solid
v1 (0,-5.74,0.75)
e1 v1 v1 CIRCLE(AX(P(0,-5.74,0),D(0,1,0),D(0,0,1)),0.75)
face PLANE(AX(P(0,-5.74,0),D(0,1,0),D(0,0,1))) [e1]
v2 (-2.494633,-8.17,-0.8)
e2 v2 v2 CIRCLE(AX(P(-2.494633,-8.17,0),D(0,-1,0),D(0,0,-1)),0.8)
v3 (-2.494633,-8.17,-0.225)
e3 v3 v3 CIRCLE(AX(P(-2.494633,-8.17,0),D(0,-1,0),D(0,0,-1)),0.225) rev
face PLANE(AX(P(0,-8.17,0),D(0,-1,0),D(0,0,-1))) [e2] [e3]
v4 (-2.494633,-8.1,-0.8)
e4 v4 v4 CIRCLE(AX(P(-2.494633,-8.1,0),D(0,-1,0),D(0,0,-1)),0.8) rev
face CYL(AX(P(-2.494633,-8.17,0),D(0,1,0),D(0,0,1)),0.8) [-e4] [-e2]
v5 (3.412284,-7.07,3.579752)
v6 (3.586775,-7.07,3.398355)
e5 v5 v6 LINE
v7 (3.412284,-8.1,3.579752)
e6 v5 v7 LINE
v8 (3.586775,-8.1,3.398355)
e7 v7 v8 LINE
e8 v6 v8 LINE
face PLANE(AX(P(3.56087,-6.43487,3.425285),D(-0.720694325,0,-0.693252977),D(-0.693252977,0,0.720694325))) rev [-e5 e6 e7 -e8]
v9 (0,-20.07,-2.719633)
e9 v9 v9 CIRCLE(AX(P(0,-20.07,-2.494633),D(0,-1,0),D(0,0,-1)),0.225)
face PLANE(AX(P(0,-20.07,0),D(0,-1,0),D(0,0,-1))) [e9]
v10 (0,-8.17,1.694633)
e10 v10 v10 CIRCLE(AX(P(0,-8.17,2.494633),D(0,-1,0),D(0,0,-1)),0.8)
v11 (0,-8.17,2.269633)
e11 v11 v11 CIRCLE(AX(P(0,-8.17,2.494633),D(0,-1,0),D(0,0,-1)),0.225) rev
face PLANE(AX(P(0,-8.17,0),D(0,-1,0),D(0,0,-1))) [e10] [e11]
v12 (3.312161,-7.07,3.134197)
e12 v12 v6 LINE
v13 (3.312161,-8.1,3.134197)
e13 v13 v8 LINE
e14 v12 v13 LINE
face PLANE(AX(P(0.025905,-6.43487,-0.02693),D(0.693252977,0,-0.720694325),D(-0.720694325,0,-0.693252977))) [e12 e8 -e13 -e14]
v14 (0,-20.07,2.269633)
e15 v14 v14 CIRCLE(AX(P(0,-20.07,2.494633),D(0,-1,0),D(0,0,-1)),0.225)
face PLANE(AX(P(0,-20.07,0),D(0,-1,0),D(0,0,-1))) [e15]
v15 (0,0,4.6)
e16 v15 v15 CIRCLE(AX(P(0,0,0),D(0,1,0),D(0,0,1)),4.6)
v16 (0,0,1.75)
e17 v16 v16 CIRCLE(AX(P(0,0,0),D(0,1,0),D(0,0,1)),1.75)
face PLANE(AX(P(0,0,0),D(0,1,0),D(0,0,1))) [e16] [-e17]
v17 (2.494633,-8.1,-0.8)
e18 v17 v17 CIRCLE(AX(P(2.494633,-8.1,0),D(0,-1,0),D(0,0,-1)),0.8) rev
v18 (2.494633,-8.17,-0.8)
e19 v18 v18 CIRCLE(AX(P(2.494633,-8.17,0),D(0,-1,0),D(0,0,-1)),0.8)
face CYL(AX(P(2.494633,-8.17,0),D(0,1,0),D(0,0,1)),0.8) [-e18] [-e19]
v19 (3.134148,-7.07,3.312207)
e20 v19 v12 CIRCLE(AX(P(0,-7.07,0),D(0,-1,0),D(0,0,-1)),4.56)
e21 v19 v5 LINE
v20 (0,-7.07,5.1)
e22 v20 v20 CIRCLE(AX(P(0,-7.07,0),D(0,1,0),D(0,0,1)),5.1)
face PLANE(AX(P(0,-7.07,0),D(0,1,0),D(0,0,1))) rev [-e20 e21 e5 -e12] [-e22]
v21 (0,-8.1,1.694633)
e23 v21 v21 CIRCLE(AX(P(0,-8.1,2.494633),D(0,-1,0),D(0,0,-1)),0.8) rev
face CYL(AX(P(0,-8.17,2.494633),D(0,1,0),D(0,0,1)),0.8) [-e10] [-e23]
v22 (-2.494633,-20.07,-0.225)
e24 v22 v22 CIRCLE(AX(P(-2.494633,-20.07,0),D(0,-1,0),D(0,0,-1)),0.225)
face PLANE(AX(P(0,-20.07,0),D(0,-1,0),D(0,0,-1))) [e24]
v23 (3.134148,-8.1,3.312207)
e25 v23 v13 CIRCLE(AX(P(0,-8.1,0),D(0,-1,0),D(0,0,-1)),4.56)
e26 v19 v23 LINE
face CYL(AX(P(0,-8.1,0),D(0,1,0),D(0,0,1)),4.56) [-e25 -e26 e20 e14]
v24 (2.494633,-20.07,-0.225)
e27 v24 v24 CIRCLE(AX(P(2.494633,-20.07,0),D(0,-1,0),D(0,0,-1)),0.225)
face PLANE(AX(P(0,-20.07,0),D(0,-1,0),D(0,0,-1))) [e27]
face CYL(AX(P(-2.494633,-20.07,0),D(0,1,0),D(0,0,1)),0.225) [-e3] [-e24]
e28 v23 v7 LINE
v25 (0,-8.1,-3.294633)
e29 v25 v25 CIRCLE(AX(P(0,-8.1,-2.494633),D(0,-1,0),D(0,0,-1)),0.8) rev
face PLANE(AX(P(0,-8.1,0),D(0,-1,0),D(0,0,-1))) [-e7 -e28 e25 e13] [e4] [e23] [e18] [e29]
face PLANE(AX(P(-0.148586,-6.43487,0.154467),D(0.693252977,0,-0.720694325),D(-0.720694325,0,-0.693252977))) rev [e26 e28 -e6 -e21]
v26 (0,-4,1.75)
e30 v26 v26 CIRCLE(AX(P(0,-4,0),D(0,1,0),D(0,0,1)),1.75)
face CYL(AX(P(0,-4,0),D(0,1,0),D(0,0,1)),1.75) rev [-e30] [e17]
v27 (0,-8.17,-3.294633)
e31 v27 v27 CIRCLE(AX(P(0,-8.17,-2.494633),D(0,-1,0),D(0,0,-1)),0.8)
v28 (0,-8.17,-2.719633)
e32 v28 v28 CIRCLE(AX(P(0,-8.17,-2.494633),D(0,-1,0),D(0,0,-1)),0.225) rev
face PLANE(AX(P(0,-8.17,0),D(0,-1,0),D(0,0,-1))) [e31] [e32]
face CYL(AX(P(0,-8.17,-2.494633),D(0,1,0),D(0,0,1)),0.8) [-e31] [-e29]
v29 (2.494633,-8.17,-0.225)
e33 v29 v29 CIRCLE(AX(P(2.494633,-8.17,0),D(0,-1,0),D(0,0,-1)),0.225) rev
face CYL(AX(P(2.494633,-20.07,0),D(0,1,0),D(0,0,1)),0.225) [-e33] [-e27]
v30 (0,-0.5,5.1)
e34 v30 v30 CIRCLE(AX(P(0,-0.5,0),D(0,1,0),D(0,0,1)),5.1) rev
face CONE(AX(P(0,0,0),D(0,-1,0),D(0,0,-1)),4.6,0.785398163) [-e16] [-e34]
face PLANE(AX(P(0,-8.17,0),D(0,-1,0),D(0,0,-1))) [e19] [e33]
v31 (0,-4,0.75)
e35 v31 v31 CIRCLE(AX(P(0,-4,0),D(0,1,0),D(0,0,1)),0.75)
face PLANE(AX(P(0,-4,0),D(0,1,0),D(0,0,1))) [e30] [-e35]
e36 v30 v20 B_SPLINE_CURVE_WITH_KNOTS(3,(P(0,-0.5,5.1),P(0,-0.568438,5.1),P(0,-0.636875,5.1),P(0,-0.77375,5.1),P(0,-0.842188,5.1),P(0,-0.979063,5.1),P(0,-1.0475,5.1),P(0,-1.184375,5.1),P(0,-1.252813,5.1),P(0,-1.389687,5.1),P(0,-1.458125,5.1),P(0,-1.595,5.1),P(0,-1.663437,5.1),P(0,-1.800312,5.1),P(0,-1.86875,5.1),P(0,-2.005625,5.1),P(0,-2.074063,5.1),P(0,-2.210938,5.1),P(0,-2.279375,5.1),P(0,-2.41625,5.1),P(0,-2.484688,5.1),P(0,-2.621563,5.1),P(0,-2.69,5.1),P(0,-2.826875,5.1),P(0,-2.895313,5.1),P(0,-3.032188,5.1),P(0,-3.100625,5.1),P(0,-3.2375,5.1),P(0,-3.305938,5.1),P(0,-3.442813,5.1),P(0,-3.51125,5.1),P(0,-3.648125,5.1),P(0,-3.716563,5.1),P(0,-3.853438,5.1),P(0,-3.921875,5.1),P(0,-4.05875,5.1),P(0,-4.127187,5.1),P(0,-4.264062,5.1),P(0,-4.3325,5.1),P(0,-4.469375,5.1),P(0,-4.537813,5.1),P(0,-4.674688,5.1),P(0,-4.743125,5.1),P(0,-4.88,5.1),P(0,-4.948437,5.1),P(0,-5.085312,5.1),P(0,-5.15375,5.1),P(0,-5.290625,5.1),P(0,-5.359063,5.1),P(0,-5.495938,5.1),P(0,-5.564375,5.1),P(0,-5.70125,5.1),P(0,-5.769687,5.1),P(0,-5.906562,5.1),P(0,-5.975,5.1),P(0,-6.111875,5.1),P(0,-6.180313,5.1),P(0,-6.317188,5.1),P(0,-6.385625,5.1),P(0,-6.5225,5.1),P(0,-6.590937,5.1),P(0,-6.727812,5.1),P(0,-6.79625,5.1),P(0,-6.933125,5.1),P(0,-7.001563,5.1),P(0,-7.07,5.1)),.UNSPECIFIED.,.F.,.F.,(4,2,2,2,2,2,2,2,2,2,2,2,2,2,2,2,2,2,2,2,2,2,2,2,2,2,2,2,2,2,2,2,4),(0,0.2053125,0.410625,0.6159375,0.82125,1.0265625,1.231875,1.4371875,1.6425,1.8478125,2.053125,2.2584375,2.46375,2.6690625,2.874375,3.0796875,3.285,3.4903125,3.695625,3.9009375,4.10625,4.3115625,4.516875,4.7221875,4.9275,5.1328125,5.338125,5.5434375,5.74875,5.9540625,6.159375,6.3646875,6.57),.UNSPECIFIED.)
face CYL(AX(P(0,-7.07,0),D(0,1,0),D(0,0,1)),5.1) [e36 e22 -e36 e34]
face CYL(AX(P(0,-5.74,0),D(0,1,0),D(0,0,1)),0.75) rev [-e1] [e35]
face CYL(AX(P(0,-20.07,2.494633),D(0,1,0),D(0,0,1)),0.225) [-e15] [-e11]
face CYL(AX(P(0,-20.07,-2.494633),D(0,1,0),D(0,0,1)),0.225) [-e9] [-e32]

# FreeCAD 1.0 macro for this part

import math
import FreeCAD as App
import Part
import Sketcher


def edges_at(feature, points):
    """Names of the edges that pass closest to the given points."""
    edges = feature.Shape.Edges
    near = lambda p: min(range(len(edges)), key=lambda i: edges[i].distToShape(Part.Vertex(*p))[0])
    return sorted({f"Edge{near(p) + 1}" for p in points})

doc = App.newDocument("Part")
body = doc.addObject("PartDesign::Body", "Body")

# Sketch on XZ plane
sketch1 = doc.addObject("Sketcher::SketchObject", "Sketch")
body.addObject(sketch1)
sketch1.AttachmentSupport = (doc.XZ_Plane, [""])
sketch1.MapMode = "FlatFace"
sketch1.addGeometry(Part.Circle(App.Vector(0, 0, 0), App.Vector(0, 0, 1), 5), False)
sketch1.addConstraint([
    Sketcher.Constraint("Coincident", 0, 3, -1, 1),
    Sketcher.Constraint("Diameter", 0, 10.2),
])
pad1 = doc.addObject("PartDesign::Pad", "Pad")
body.addObject(pad1)
pad1.Profile = sketch1
pad1.Length = 7.07

# Sketch on XZ plane
sketch2 = doc.addObject("Sketcher::SketchObject", "Sketch001")
body.addObject(sketch2)
sketch2.AttachmentSupport = (doc.XZ_Plane, [""])
sketch2.MapMode = "FlatFace"
sketch2.addGeometry(Part.Circle(App.Vector(0, 0, 0), App.Vector(0, 0, 1), 0.8), False)
sketch2.addConstraint([
    Sketcher.Constraint("Coincident", 0, 3, -1, 1),
    Sketcher.Constraint("Diameter", 0, 1.5),
])
pocket1 = doc.addObject("PartDesign::Pocket", "Pocket")
body.addObject(pocket1)
pocket1.Profile = sketch2
pocket1.Length = 5.74
pocket1.Reversed = True

# Sketch on XZ plane
sketch3 = doc.addObject("Sketcher::SketchObject", "Sketch002")
body.addObject(sketch3)
sketch3.AttachmentSupport = (doc.XZ_Plane, [""])
sketch3.MapMode = "FlatFace"
sketch3.addGeometry([
    Part.Circle(App.Vector(0, 0, 0), App.Vector(0, 0, 1), 1.8),
    Part.Circle(App.Vector(0, 0, 0), App.Vector(0, 0, 1), 0.8),
], False)
sketch3.addConstraint([
    Sketcher.Constraint("Coincident", 0, 3, -1, 1),
    Sketcher.Constraint("Coincident", 1, 3, -1, 1),
    Sketcher.Constraint("Diameter", 0, 3.5),
    Sketcher.Constraint("Diameter", 1, 1.5),
])
pocket2 = doc.addObject("PartDesign::Pocket", "Pocket001")
body.addObject(pocket2)
pocket2.Profile = sketch3
pocket2.Length = 4
pocket2.Reversed = True
doc.recompute()

chamfer = doc.addObject("PartDesign::Chamfer", "Chamfer")
body.addObject(chamfer)
chamfer.Base = (pocket2, edges_at(pocket2, [(0, 0, -5.1)]))
chamfer.Size = 0.5

# Sketch on XZ plane
sketch4 = doc.addObject("Sketcher::SketchObject", "Sketch003")
body.addObject(sketch4)
sketch4.AttachmentSupport = (doc.XZ_Plane, [""])
sketch4.MapMode = "FlatFace"
sketch4.AttachmentOffset = App.Placement(App.Vector(0, 0, 7.07), App.Rotation())
sketch4.addGeometry([
    Part.ArcOfCircle(Part.Circle(App.Vector(0, 0, 0), App.Vector(0, 0, 1), 4.6), math.radians(90), math.radians(180)),  # 0
    Part.ArcOfCircle(Part.Circle(App.Vector(0, 0, 0), App.Vector(0, 0, 1), 4.6), math.radians(-180), math.radians(-90)),  # 1
    Part.ArcOfCircle(Part.Circle(App.Vector(0, 0, 0), App.Vector(0, 0, 1), 4.6), math.radians(-90), math.radians(0)),  # 2
    Part.ArcOfCircle(Part.Circle(App.Vector(0, 0, 0), App.Vector(0, 0, 1), 4.6), math.radians(0), math.radians(45)),  # 3
    Part.ArcOfCircle(Part.Circle(App.Vector(0, 0, 0), App.Vector(0, 0, 1), 4.6), math.radians(45), math.radians(90)),  # 4
], False)
sketch4.addConstraint([
    Sketcher.Constraint("Tangent", 0, 2, 1, 1),
    Sketcher.Constraint("Tangent", 1, 2, 2, 1),
    Sketcher.Constraint("Tangent", 2, 2, 3, 1),
    Sketcher.Constraint("Tangent", 3, 2, 4, 1),
    Sketcher.Constraint("Tangent", 4, 2, 0, 1),
    Sketcher.Constraint("Coincident", 0, 3, -1, 1),
    Sketcher.Constraint("Coincident", 2, 3, -1, 1),
    Sketcher.Constraint("PointOnObject", 0, 2, -1),
    Sketcher.Constraint("PointOnObject", 1, 2, -2),
    Sketcher.Constraint("PointOnObject", 2, 2, -1),
    Sketcher.Constraint("PointOnObject", 4, 2, -2),
    Sketcher.Constraint("Radius", 0, 4.56),
    Sketcher.Constraint("DistanceY", -1, 1, 3, 2, 3.24703),
])
pad2 = doc.addObject("PartDesign::Pad", "Pad001")
body.addObject(pad2)
pad2.Profile = sketch4
pad2.Length = 1.03

# Sketch on XZ plane
sketch5 = doc.addObject("Sketcher::SketchObject", "Sketch004")
body.addObject(sketch5)
sketch5.AttachmentSupport = (doc.XZ_Plane, [""])
sketch5.MapMode = "FlatFace"
sketch5.AttachmentOffset = App.Placement(App.Vector(0, 0, 7.07), App.Rotation())
sketch5.addGeometry([
    Part.Circle(App.Vector(-2.5, 0, 0), App.Vector(0, 0, 1), 0.8),  # 0
    Part.ArcOfCircle(Part.Circle(App.Vector(0, -2.5, 0), App.Vector(0, 0, 1), 0.8), math.radians(90), math.radians(270)),  # 1
    Part.ArcOfCircle(Part.Circle(App.Vector(0, -2.5, 0), App.Vector(0, 0, 1), 0.8), math.radians(-90), math.radians(0)),  # 2
    Part.ArcOfCircle(Part.Circle(App.Vector(0, -2.5, 0), App.Vector(0, 0, 1), 0.8), math.radians(0), math.radians(90)),  # 3
    Part.Circle(App.Vector(2.5, 0, 0), App.Vector(0, 0, 1), 0.8),  # 4
    Part.ArcOfCircle(Part.Circle(App.Vector(0, 2.5, 0), App.Vector(0, 0, 1), 0.8), math.radians(-90), math.radians(0)),  # 5
    Part.ArcOfCircle(Part.Circle(App.Vector(0, 2.5, 0), App.Vector(0, 0, 1), 0.8), math.radians(0), math.radians(90)),  # 6
    Part.ArcOfCircle(Part.Circle(App.Vector(0, 2.5, 0), App.Vector(0, 0, 1), 0.8), math.radians(90), math.radians(270)),  # 7
], False)
sketch5.addConstraint([
    Sketcher.Constraint("Tangent", 1, 2, 2, 1),
    Sketcher.Constraint("Tangent", 2, 2, 3, 1),
    Sketcher.Constraint("Tangent", 3, 2, 1, 1),
    Sketcher.Constraint("Tangent", 5, 2, 6, 1),
    Sketcher.Constraint("Tangent", 6, 2, 7, 1),
    Sketcher.Constraint("Tangent", 7, 2, 5, 1),
    Sketcher.Constraint("Equal", 0, 1),
    Sketcher.Constraint("Equal", 3, 4),
    Sketcher.Constraint("Equal", 4, 5),
    Sketcher.Constraint("Symmetric", 0, 3, 4, 3, -1, 1),
    Sketcher.Constraint("Symmetric", 1, 3, 5, 3, -1, 1),
    Sketcher.Constraint("Symmetric", 2, 2, 5, 2, -1),
    Sketcher.Constraint("PointOnObject", 0, 3, -1),
    Sketcher.Constraint("PointOnObject", 1, 2, -2),
    Sketcher.Constraint("PointOnObject", 3, 2, -2),
    Sketcher.Constraint("PointOnObject", 6, 2, -2),
    Sketcher.Constraint("PointOnObject", 7, 2, -2),
    Sketcher.Constraint("Horizontal", 3, 3, 2, 2),
    Sketcher.Constraint("Diameter", 0, 1.6),
    Sketcher.Constraint("DistanceX", 0, 3, -1, 1, 2.494633),
    Sketcher.Constraint("DistanceY", 1, 3, -1, 1, 2.494633),
])
pad3 = doc.addObject("PartDesign::Pad", "Pad002")
body.addObject(pad3)
pad3.Profile = sketch5
pad3.Length = 1.1

# Sketch on XZ plane
sketch6 = doc.addObject("Sketcher::SketchObject", "Sketch005")
body.addObject(sketch6)
sketch6.AttachmentSupport = (doc.XZ_Plane, [""])
sketch6.MapMode = "FlatFace"
sketch6.AttachmentOffset = App.Placement(App.Vector(0, 0, 7.07), App.Rotation())
sketch6.addGeometry([
    Part.Circle(App.Vector(-2.49, 0, 0), App.Vector(0, 0, 1), 0.23),  # 0
    Part.ArcOfCircle(Part.Circle(App.Vector(0, 2.49, 0), App.Vector(0, 0, 1), 0.22), math.radians(0), math.radians(90)),  # 1
    Part.ArcOfCircle(Part.Circle(App.Vector(0, 2.49, 0), App.Vector(0, 0, 1), 0.23), math.radians(90), math.radians(270)),  # 2
    Part.ArcOfCircle(Part.Circle(App.Vector(0, 2.49, 0), App.Vector(0, 0, 1), 0.22), math.radians(-90), math.radians(0)),  # 3
    Part.Circle(App.Vector(2.49, 0, 0), App.Vector(0, 0, 1), 0.23),  # 4
    Part.ArcOfCircle(Part.Circle(App.Vector(0, -2.49, 0), App.Vector(0, 0, 1), 0.23), math.radians(90), math.radians(270)),  # 5
    Part.ArcOfCircle(Part.Circle(App.Vector(0, -2.49, 0), App.Vector(0, 0, 1), 0.22), math.radians(-90), math.radians(0)),  # 6
    Part.ArcOfCircle(Part.Circle(App.Vector(0, -2.49, 0), App.Vector(0, 0, 1), 0.22), math.radians(0), math.radians(90)),  # 7
], False)
sketch6.addConstraint([
    Sketcher.Constraint("Tangent", 1, 2, 2, 1),
    Sketcher.Constraint("Tangent", 2, 2, 3, 1),
    Sketcher.Constraint("Tangent", 3, 2, 1, 1),
    Sketcher.Constraint("Tangent", 5, 2, 6, 1),
    Sketcher.Constraint("Tangent", 6, 2, 7, 1),
    Sketcher.Constraint("Tangent", 7, 2, 5, 1),
    Sketcher.Constraint("Equal", 0, 1),
    Sketcher.Constraint("Equal", 3, 4),
    Sketcher.Constraint("Equal", 4, 5),
    Sketcher.Constraint("Symmetric", 0, 3, 4, 3, -1, 1),
    Sketcher.Constraint("Symmetric", 1, 3, 5, 3, -1, 1),
    Sketcher.Constraint("Symmetric", 3, 2, 6, 2, -1),
    Sketcher.Constraint("PointOnObject", 0, 3, -1),
    Sketcher.Constraint("PointOnObject", 1, 2, -2),
    Sketcher.Constraint("PointOnObject", 2, 2, -2),
    Sketcher.Constraint("PointOnObject", 5, 2, -2),
    Sketcher.Constraint("PointOnObject", 7, 2, -2),
    Sketcher.Constraint("Horizontal", 2, 3, 3, 2),
    Sketcher.Constraint("Diameter", 0, 0.45),
    Sketcher.Constraint("DistanceX", 0, 3, -1, 1, 2.494633),
    Sketcher.Constraint("DistanceY", -1, 1, 1, 3, 2.494633),
])
pad4 = doc.addObject("PartDesign::Pad", "Pad003")
body.addObject(pad4)
pad4.Profile = sketch6
pad4.Length = 13

# Sketch on XZ plane
sketch7 = doc.addObject("Sketcher::SketchObject", "Sketch006")
body.addObject(sketch7)
sketch7.AttachmentSupport = (doc.XZ_Plane, [""])
sketch7.MapMode = "FlatFace"
sketch7.AttachmentOffset = App.Placement(App.Vector(0, 0, 7.07), App.Rotation())
sketch7.addGeometry([
    Part.LineSegment(App.Vector(3.41, 3.58, 0), App.Vector(3.13, 3.31, 0)),  # 0
    Part.ArcOfCircle(Part.Circle(App.Vector(0, 0, 0), App.Vector(0, 0, 1), 4.56), math.radians(45), math.radians(46.58)),  # 1
    Part.ArcOfCircle(Part.Circle(App.Vector(0, 0, 0), App.Vector(0, 0, 1), 4.56), math.radians(43.42), math.radians(45)),  # 2
    Part.LineSegment(App.Vector(3.31, 3.13, 0), App.Vector(3.59, 3.4, 0)),  # 3
    Part.LineSegment(App.Vector(3.59, 3.4, 0), App.Vector(3.41, 3.58, 0)),  # 4
], False)
sketch7.addConstraint([
    Sketcher.Constraint("Coincident", 0, 2, 1, 2),
    Sketcher.Constraint("Tangent", 1, 1, 2, 2),
    Sketcher.Constraint("Coincident", 2, 1, 3, 1),
    Sketcher.Constraint("Coincident", 3, 2, 4, 1),
    Sketcher.Constraint("Coincident", 4, 2, 0, 1),
    Sketcher.Constraint("Coincident", 1, 3, -1, 1),
    Sketcher.Constraint("Parallel", 0, 3),
    Sketcher.Constraint("Perpendicular", 3, 4),
    Sketcher.Constraint("Radius", 1, 4.560001),
    Sketcher.Constraint("Radius", 2, 4.559998),
    Sketcher.Constraint("Distance", 4, 0.251698),
    Sketcher.Constraint("DistanceY", 1, 1, 0, 2, 0.0878),
    Sketcher.Constraint("Distance", 3, 0.381041),
    Sketcher.Constraint("DistanceX", -1, 1, 0, 2, 3.134148),
    Sketcher.Constraint("DistanceY", 1, 1, 3, 2, 0.173948),
])
pad5 = doc.addObject("PartDesign::Pad", "Pad004")
body.addObject(pad5)
pad5.Profile = sketch7
pad5.Length = 1.03

doc.recompute()
